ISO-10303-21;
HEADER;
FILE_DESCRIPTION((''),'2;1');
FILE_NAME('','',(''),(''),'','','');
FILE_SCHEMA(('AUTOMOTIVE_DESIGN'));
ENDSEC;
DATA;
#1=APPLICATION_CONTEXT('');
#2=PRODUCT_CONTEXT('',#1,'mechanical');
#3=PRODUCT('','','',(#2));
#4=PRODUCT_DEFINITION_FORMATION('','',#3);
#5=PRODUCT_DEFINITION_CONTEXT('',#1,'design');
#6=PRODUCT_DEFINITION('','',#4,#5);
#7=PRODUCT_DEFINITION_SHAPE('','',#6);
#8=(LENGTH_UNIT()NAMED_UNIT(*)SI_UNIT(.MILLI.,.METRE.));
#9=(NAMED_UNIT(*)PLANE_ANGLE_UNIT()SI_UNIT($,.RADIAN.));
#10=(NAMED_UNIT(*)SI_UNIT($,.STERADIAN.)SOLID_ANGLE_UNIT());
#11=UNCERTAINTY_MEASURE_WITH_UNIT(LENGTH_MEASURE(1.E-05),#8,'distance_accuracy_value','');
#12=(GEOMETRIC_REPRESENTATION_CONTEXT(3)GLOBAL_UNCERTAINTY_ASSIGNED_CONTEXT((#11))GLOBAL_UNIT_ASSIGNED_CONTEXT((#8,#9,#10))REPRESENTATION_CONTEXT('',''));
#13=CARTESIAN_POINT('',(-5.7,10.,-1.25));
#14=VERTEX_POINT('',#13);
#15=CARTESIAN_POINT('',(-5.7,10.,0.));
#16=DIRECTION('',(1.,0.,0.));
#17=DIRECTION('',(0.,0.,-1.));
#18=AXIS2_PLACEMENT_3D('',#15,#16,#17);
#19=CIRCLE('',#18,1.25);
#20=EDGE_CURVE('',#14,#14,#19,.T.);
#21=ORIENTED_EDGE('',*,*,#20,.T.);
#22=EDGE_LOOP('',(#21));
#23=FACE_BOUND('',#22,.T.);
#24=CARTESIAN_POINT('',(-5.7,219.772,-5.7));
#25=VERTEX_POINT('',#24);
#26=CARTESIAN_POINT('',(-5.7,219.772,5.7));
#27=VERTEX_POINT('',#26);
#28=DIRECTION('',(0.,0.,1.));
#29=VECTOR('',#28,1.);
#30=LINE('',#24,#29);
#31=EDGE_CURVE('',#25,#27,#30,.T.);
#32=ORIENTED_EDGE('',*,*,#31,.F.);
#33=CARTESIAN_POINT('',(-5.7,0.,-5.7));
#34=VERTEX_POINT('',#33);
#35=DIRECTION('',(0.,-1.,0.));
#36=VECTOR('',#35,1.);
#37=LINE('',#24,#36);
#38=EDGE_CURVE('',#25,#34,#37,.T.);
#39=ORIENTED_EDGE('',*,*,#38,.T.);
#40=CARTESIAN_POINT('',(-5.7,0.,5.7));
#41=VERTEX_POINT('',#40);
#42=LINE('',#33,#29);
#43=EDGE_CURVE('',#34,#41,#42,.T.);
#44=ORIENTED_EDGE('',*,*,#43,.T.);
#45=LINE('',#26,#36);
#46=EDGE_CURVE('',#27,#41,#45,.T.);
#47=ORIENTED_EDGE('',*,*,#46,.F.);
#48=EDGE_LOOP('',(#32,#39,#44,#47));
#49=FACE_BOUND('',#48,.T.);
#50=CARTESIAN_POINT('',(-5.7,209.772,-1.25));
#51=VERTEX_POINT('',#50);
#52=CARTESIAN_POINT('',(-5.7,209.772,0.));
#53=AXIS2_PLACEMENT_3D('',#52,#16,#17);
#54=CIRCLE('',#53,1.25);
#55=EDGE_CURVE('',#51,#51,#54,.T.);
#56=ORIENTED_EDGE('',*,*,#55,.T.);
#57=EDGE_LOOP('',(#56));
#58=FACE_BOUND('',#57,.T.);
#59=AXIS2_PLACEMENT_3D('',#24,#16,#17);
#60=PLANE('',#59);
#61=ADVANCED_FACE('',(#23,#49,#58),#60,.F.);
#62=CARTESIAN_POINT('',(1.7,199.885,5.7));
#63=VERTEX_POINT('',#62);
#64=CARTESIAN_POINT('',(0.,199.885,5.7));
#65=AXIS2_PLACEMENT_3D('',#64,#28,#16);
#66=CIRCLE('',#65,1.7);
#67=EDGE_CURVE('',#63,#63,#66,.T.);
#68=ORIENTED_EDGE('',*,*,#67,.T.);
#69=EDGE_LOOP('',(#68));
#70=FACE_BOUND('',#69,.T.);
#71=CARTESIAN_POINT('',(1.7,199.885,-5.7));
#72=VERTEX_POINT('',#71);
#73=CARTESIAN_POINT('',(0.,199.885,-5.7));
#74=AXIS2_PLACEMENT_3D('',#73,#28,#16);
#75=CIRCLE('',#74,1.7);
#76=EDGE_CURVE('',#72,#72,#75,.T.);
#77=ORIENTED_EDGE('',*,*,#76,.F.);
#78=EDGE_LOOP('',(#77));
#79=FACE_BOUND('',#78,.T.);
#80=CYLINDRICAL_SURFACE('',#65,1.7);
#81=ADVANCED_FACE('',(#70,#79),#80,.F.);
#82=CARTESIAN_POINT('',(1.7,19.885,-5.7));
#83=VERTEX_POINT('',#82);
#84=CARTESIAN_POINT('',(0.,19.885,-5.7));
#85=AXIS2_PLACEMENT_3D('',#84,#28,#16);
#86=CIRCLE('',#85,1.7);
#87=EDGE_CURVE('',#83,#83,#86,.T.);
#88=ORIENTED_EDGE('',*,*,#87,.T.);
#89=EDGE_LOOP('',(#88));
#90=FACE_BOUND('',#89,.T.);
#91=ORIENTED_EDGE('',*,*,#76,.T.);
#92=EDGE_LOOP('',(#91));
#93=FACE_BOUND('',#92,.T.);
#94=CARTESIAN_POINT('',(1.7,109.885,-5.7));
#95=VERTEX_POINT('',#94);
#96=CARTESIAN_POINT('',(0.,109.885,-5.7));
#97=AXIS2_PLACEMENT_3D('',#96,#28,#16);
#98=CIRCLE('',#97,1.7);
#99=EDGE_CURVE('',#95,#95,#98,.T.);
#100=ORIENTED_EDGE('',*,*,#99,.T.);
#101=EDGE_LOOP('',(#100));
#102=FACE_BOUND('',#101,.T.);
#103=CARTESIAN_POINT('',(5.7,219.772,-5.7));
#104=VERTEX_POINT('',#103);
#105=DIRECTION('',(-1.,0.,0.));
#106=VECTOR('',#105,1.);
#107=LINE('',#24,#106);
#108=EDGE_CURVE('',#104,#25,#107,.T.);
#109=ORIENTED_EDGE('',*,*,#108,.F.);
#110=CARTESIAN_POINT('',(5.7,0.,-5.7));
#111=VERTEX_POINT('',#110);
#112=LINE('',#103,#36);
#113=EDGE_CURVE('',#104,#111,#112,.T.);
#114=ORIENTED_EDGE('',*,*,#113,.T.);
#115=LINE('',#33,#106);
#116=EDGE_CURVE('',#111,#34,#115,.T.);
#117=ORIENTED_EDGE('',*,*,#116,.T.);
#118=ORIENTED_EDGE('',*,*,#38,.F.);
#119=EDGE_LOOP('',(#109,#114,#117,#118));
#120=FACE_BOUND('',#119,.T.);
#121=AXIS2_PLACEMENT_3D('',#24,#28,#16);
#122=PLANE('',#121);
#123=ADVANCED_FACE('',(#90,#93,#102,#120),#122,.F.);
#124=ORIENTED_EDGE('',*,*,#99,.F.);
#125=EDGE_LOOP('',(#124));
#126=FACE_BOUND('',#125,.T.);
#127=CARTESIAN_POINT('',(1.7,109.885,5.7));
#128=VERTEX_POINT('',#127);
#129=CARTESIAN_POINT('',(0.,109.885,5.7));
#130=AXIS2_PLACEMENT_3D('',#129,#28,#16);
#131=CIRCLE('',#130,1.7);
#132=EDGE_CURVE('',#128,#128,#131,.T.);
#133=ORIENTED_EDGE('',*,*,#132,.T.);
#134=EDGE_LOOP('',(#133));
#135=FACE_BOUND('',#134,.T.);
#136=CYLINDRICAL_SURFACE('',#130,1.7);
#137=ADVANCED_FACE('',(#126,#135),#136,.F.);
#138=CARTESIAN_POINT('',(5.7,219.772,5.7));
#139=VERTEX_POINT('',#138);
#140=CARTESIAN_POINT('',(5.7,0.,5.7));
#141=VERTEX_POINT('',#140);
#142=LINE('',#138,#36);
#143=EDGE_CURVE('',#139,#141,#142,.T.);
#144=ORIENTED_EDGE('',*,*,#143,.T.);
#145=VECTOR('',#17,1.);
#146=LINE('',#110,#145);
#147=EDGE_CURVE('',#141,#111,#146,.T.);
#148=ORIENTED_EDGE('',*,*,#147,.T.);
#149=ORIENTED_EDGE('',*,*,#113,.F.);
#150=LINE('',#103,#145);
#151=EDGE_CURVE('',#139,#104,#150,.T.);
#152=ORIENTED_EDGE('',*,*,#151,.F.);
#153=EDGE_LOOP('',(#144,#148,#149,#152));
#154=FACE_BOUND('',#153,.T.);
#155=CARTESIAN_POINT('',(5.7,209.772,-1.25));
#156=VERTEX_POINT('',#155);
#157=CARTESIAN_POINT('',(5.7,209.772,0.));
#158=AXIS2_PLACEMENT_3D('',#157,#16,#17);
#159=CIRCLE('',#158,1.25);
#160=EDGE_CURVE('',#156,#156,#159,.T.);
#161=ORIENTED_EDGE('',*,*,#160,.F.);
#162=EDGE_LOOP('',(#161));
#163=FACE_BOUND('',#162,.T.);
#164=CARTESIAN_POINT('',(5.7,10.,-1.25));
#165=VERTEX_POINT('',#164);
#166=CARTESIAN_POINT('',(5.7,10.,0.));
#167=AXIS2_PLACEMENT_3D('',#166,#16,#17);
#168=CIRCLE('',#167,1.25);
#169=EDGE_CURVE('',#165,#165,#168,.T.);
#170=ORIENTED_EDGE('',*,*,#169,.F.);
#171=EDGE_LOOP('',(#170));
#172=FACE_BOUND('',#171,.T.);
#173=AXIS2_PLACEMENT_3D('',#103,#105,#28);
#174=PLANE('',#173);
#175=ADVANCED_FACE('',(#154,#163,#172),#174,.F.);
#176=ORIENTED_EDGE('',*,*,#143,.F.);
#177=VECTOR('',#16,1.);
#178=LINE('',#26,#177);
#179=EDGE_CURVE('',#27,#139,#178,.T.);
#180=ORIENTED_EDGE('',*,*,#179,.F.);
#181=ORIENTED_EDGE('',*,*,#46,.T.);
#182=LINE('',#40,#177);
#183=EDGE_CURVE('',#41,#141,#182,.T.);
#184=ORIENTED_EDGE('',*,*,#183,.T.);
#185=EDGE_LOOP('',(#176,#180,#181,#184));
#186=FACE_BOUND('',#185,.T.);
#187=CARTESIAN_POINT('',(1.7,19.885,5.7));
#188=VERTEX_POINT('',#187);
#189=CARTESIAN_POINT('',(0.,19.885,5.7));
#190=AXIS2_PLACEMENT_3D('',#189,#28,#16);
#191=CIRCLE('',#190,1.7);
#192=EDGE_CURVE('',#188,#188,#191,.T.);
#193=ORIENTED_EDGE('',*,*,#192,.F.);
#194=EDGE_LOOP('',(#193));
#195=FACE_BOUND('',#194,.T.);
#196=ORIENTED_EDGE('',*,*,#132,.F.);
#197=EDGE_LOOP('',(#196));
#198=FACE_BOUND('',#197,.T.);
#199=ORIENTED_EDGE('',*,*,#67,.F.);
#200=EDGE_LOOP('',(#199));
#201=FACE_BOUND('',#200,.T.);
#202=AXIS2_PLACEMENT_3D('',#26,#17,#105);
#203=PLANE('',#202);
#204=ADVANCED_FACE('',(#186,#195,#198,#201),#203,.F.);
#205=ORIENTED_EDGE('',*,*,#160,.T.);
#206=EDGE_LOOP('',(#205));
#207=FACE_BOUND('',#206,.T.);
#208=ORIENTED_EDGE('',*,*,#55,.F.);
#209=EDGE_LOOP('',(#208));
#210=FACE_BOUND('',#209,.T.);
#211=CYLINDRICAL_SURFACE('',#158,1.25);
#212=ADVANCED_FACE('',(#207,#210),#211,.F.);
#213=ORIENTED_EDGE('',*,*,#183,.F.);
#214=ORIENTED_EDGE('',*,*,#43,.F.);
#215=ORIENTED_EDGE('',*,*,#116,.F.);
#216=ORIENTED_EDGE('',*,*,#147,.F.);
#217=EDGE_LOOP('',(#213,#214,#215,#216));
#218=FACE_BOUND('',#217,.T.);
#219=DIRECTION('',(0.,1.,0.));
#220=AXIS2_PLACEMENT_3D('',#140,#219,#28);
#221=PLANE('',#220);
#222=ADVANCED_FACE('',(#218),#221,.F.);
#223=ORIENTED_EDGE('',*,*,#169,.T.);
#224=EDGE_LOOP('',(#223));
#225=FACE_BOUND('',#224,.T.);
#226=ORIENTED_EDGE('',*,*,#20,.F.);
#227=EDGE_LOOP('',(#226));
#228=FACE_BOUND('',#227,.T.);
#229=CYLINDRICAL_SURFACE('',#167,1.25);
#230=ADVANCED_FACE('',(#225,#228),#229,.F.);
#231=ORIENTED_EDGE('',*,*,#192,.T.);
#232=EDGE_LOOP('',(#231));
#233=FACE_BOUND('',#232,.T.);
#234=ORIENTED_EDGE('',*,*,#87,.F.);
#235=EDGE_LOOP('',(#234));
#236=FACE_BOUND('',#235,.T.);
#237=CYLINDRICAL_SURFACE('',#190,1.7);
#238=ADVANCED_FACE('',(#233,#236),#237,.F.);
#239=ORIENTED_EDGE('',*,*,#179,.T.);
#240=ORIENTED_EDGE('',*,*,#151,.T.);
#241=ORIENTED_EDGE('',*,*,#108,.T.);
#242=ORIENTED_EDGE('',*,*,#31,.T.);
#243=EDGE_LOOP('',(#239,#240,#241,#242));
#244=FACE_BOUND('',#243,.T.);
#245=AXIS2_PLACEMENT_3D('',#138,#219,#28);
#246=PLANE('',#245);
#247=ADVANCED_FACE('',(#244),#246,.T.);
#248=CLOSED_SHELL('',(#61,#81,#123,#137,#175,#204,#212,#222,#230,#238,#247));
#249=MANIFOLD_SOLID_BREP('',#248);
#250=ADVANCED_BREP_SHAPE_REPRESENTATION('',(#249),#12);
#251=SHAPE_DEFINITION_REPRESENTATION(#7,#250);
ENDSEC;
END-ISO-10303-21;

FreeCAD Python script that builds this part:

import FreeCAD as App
import Part
import Sketcher
Q = App.Units.Quantity


def add_polygon(sketch, points):
    """Adds a closed chain of lines whose ends are joined by coincident constraints."""
    first, n = sketch.GeometryCount, len(points)
    for a, b in zip(points, points[1:] + points[:1]):
        sketch.addGeometry(Part.LineSegment(App.Vector(*a, 0), App.Vector(*b, 0)), False)
    for i in range(n):
        sketch.addConstraint(Sketcher.Constraint("Coincident", first + i, 2, first + (i + 1) % n, 1))

doc = App.newDocument("Part")
body = doc.addObject("PartDesign::Body", "Body")

# Sketch on XZ plane
sketch1 = doc.addObject("Sketcher::SketchObject", "Sketch")
body.addObject(sketch1)
sketch1.AttachmentSupport = (doc.XZ_Plane, [""])
sketch1.MapMode = "FlatFace"
add_polygon(sketch1, [(-6, -6), (-6, 6), (6, 6), (6, -6)])  # lines 0-3
sketch1.addConstraint(Sketcher.Constraint("Vertical", 0))
sketch1.addConstraint(Sketcher.Constraint("Horizontal", 1))
sketch1.addConstraint(Sketcher.Constraint("Vertical", 2))
sketch1.addConstraint(Sketcher.Constraint("Horizontal", 3))
sketch1.addConstraint(Sketcher.Constraint("Symmetric", 0, 2, 2, 2, -1, 1))
sketch1.addConstraint(Sketcher.Constraint("Equal", 3, 0))
sketch1.addConstraint(Sketcher.Constraint("DistanceX", 1, 1, 1, 2, Q("11.4 mm")))
pad1 = doc.addObject("PartDesign::Pad", "Pad")
body.addObject(pad1)
pad1.Profile = sketch1
pad1.Length = 219.772
pad1.Reversed = True

# Sketch on XY plane
sketch2 = doc.addObject("Sketcher::SketchObject", "Sketch001")
body.addObject(sketch2)
sketch2.AttachmentSupport = (doc.XY_Plane, [""])
sketch2.MapMode = "FlatFace"
sketch2.AttachmentOffset = App.Placement(App.Vector(0, 0, 5.7), App.Rotation())
sketch2.addGeometry(Part.Circle(App.Vector(0, 199.9, 0), App.Vector(0, 0, 1), 1.7), False)
sketch2.addGeometry(Part.Circle(App.Vector(0, 109.9, 0), App.Vector(0, 0, 1), 1.7), False)
sketch2.addGeometry(Part.Circle(App.Vector(0, 19.9, 0), App.Vector(0, 0, 1), 1.7), False)
sketch2.addConstraint(Sketcher.Constraint("Equal", 0, 1))
sketch2.addConstraint(Sketcher.Constraint("Equal", 1, 2))
sketch2.addConstraint(Sketcher.Constraint("PointOnObject", 0, 3, -2))
sketch2.addConstraint(Sketcher.Constraint("PointOnObject", 1, 3, -2))
sketch2.addConstraint(Sketcher.Constraint("PointOnObject", 2, 3, -2))
sketch2.addConstraint(Sketcher.Constraint("Diameter", 0, Q("3.4 mm")))
sketch2.addConstraint(Sketcher.Constraint("DistanceY", 1, 3, 0, 3, Q("90 mm")))
sketch2.addConstraint(Sketcher.Constraint("DistanceY", 2, 3, 1, 3, Q("90 mm")))
sketch2.addConstraint(Sketcher.Constraint("DistanceY", -1, 1, 0, 3, Q("199.885 mm")))
doc.recompute()
hole = doc.addObject("PartDesign::Hole", "Hole")
body.addObject(hole)
hole.Profile = sketch2
hole.ThreadType = "None"
hole.Diameter = 3.4
hole.DepthType = "ThroughAll"

# Sketch on YZ plane
sketch3 = doc.addObject("Sketcher::SketchObject", "Sketch002")
body.addObject(sketch3)
sketch3.AttachmentSupport = (doc.YZ_Plane, [""])
sketch3.MapMode = "FlatFace"
sketch3.AttachmentOffset = App.Placement(App.Vector(0, 0, 5.7), App.Rotation())
sketch3.addGeometry(Part.Circle(App.Vector(209.8, 0, 0), App.Vector(0, 0, 1), 1.2), False)
sketch3.addGeometry(Part.Circle(App.Vector(10, 0, 0), App.Vector(0, 0, 1), 1.2), False)
sketch3.addConstraint(Sketcher.Constraint("Equal", 0, 1))
sketch3.addConstraint(Sketcher.Constraint("PointOnObject", 0, 3, -1))
sketch3.addConstraint(Sketcher.Constraint("PointOnObject", 1, 3, -1))
sketch3.addConstraint(Sketcher.Constraint("Diameter", 0, Q("2.5 mm")))
sketch3.addConstraint(Sketcher.Constraint("DistanceX", -1, 1, 1, 3, Q("10 mm")))
sketch3.addConstraint(Sketcher.Constraint("DistanceX", -1, 1, 0, 3, Q("209.772 mm")))
doc.recompute()
hole2 = doc.addObject("PartDesign::Hole", "Hole001")
body.addObject(hole2)
hole2.Profile = sketch3
hole2.ThreadType = "None"
hole2.Diameter = 2.5
hole2.DepthType = "ThroughAll"

doc.recompute()
